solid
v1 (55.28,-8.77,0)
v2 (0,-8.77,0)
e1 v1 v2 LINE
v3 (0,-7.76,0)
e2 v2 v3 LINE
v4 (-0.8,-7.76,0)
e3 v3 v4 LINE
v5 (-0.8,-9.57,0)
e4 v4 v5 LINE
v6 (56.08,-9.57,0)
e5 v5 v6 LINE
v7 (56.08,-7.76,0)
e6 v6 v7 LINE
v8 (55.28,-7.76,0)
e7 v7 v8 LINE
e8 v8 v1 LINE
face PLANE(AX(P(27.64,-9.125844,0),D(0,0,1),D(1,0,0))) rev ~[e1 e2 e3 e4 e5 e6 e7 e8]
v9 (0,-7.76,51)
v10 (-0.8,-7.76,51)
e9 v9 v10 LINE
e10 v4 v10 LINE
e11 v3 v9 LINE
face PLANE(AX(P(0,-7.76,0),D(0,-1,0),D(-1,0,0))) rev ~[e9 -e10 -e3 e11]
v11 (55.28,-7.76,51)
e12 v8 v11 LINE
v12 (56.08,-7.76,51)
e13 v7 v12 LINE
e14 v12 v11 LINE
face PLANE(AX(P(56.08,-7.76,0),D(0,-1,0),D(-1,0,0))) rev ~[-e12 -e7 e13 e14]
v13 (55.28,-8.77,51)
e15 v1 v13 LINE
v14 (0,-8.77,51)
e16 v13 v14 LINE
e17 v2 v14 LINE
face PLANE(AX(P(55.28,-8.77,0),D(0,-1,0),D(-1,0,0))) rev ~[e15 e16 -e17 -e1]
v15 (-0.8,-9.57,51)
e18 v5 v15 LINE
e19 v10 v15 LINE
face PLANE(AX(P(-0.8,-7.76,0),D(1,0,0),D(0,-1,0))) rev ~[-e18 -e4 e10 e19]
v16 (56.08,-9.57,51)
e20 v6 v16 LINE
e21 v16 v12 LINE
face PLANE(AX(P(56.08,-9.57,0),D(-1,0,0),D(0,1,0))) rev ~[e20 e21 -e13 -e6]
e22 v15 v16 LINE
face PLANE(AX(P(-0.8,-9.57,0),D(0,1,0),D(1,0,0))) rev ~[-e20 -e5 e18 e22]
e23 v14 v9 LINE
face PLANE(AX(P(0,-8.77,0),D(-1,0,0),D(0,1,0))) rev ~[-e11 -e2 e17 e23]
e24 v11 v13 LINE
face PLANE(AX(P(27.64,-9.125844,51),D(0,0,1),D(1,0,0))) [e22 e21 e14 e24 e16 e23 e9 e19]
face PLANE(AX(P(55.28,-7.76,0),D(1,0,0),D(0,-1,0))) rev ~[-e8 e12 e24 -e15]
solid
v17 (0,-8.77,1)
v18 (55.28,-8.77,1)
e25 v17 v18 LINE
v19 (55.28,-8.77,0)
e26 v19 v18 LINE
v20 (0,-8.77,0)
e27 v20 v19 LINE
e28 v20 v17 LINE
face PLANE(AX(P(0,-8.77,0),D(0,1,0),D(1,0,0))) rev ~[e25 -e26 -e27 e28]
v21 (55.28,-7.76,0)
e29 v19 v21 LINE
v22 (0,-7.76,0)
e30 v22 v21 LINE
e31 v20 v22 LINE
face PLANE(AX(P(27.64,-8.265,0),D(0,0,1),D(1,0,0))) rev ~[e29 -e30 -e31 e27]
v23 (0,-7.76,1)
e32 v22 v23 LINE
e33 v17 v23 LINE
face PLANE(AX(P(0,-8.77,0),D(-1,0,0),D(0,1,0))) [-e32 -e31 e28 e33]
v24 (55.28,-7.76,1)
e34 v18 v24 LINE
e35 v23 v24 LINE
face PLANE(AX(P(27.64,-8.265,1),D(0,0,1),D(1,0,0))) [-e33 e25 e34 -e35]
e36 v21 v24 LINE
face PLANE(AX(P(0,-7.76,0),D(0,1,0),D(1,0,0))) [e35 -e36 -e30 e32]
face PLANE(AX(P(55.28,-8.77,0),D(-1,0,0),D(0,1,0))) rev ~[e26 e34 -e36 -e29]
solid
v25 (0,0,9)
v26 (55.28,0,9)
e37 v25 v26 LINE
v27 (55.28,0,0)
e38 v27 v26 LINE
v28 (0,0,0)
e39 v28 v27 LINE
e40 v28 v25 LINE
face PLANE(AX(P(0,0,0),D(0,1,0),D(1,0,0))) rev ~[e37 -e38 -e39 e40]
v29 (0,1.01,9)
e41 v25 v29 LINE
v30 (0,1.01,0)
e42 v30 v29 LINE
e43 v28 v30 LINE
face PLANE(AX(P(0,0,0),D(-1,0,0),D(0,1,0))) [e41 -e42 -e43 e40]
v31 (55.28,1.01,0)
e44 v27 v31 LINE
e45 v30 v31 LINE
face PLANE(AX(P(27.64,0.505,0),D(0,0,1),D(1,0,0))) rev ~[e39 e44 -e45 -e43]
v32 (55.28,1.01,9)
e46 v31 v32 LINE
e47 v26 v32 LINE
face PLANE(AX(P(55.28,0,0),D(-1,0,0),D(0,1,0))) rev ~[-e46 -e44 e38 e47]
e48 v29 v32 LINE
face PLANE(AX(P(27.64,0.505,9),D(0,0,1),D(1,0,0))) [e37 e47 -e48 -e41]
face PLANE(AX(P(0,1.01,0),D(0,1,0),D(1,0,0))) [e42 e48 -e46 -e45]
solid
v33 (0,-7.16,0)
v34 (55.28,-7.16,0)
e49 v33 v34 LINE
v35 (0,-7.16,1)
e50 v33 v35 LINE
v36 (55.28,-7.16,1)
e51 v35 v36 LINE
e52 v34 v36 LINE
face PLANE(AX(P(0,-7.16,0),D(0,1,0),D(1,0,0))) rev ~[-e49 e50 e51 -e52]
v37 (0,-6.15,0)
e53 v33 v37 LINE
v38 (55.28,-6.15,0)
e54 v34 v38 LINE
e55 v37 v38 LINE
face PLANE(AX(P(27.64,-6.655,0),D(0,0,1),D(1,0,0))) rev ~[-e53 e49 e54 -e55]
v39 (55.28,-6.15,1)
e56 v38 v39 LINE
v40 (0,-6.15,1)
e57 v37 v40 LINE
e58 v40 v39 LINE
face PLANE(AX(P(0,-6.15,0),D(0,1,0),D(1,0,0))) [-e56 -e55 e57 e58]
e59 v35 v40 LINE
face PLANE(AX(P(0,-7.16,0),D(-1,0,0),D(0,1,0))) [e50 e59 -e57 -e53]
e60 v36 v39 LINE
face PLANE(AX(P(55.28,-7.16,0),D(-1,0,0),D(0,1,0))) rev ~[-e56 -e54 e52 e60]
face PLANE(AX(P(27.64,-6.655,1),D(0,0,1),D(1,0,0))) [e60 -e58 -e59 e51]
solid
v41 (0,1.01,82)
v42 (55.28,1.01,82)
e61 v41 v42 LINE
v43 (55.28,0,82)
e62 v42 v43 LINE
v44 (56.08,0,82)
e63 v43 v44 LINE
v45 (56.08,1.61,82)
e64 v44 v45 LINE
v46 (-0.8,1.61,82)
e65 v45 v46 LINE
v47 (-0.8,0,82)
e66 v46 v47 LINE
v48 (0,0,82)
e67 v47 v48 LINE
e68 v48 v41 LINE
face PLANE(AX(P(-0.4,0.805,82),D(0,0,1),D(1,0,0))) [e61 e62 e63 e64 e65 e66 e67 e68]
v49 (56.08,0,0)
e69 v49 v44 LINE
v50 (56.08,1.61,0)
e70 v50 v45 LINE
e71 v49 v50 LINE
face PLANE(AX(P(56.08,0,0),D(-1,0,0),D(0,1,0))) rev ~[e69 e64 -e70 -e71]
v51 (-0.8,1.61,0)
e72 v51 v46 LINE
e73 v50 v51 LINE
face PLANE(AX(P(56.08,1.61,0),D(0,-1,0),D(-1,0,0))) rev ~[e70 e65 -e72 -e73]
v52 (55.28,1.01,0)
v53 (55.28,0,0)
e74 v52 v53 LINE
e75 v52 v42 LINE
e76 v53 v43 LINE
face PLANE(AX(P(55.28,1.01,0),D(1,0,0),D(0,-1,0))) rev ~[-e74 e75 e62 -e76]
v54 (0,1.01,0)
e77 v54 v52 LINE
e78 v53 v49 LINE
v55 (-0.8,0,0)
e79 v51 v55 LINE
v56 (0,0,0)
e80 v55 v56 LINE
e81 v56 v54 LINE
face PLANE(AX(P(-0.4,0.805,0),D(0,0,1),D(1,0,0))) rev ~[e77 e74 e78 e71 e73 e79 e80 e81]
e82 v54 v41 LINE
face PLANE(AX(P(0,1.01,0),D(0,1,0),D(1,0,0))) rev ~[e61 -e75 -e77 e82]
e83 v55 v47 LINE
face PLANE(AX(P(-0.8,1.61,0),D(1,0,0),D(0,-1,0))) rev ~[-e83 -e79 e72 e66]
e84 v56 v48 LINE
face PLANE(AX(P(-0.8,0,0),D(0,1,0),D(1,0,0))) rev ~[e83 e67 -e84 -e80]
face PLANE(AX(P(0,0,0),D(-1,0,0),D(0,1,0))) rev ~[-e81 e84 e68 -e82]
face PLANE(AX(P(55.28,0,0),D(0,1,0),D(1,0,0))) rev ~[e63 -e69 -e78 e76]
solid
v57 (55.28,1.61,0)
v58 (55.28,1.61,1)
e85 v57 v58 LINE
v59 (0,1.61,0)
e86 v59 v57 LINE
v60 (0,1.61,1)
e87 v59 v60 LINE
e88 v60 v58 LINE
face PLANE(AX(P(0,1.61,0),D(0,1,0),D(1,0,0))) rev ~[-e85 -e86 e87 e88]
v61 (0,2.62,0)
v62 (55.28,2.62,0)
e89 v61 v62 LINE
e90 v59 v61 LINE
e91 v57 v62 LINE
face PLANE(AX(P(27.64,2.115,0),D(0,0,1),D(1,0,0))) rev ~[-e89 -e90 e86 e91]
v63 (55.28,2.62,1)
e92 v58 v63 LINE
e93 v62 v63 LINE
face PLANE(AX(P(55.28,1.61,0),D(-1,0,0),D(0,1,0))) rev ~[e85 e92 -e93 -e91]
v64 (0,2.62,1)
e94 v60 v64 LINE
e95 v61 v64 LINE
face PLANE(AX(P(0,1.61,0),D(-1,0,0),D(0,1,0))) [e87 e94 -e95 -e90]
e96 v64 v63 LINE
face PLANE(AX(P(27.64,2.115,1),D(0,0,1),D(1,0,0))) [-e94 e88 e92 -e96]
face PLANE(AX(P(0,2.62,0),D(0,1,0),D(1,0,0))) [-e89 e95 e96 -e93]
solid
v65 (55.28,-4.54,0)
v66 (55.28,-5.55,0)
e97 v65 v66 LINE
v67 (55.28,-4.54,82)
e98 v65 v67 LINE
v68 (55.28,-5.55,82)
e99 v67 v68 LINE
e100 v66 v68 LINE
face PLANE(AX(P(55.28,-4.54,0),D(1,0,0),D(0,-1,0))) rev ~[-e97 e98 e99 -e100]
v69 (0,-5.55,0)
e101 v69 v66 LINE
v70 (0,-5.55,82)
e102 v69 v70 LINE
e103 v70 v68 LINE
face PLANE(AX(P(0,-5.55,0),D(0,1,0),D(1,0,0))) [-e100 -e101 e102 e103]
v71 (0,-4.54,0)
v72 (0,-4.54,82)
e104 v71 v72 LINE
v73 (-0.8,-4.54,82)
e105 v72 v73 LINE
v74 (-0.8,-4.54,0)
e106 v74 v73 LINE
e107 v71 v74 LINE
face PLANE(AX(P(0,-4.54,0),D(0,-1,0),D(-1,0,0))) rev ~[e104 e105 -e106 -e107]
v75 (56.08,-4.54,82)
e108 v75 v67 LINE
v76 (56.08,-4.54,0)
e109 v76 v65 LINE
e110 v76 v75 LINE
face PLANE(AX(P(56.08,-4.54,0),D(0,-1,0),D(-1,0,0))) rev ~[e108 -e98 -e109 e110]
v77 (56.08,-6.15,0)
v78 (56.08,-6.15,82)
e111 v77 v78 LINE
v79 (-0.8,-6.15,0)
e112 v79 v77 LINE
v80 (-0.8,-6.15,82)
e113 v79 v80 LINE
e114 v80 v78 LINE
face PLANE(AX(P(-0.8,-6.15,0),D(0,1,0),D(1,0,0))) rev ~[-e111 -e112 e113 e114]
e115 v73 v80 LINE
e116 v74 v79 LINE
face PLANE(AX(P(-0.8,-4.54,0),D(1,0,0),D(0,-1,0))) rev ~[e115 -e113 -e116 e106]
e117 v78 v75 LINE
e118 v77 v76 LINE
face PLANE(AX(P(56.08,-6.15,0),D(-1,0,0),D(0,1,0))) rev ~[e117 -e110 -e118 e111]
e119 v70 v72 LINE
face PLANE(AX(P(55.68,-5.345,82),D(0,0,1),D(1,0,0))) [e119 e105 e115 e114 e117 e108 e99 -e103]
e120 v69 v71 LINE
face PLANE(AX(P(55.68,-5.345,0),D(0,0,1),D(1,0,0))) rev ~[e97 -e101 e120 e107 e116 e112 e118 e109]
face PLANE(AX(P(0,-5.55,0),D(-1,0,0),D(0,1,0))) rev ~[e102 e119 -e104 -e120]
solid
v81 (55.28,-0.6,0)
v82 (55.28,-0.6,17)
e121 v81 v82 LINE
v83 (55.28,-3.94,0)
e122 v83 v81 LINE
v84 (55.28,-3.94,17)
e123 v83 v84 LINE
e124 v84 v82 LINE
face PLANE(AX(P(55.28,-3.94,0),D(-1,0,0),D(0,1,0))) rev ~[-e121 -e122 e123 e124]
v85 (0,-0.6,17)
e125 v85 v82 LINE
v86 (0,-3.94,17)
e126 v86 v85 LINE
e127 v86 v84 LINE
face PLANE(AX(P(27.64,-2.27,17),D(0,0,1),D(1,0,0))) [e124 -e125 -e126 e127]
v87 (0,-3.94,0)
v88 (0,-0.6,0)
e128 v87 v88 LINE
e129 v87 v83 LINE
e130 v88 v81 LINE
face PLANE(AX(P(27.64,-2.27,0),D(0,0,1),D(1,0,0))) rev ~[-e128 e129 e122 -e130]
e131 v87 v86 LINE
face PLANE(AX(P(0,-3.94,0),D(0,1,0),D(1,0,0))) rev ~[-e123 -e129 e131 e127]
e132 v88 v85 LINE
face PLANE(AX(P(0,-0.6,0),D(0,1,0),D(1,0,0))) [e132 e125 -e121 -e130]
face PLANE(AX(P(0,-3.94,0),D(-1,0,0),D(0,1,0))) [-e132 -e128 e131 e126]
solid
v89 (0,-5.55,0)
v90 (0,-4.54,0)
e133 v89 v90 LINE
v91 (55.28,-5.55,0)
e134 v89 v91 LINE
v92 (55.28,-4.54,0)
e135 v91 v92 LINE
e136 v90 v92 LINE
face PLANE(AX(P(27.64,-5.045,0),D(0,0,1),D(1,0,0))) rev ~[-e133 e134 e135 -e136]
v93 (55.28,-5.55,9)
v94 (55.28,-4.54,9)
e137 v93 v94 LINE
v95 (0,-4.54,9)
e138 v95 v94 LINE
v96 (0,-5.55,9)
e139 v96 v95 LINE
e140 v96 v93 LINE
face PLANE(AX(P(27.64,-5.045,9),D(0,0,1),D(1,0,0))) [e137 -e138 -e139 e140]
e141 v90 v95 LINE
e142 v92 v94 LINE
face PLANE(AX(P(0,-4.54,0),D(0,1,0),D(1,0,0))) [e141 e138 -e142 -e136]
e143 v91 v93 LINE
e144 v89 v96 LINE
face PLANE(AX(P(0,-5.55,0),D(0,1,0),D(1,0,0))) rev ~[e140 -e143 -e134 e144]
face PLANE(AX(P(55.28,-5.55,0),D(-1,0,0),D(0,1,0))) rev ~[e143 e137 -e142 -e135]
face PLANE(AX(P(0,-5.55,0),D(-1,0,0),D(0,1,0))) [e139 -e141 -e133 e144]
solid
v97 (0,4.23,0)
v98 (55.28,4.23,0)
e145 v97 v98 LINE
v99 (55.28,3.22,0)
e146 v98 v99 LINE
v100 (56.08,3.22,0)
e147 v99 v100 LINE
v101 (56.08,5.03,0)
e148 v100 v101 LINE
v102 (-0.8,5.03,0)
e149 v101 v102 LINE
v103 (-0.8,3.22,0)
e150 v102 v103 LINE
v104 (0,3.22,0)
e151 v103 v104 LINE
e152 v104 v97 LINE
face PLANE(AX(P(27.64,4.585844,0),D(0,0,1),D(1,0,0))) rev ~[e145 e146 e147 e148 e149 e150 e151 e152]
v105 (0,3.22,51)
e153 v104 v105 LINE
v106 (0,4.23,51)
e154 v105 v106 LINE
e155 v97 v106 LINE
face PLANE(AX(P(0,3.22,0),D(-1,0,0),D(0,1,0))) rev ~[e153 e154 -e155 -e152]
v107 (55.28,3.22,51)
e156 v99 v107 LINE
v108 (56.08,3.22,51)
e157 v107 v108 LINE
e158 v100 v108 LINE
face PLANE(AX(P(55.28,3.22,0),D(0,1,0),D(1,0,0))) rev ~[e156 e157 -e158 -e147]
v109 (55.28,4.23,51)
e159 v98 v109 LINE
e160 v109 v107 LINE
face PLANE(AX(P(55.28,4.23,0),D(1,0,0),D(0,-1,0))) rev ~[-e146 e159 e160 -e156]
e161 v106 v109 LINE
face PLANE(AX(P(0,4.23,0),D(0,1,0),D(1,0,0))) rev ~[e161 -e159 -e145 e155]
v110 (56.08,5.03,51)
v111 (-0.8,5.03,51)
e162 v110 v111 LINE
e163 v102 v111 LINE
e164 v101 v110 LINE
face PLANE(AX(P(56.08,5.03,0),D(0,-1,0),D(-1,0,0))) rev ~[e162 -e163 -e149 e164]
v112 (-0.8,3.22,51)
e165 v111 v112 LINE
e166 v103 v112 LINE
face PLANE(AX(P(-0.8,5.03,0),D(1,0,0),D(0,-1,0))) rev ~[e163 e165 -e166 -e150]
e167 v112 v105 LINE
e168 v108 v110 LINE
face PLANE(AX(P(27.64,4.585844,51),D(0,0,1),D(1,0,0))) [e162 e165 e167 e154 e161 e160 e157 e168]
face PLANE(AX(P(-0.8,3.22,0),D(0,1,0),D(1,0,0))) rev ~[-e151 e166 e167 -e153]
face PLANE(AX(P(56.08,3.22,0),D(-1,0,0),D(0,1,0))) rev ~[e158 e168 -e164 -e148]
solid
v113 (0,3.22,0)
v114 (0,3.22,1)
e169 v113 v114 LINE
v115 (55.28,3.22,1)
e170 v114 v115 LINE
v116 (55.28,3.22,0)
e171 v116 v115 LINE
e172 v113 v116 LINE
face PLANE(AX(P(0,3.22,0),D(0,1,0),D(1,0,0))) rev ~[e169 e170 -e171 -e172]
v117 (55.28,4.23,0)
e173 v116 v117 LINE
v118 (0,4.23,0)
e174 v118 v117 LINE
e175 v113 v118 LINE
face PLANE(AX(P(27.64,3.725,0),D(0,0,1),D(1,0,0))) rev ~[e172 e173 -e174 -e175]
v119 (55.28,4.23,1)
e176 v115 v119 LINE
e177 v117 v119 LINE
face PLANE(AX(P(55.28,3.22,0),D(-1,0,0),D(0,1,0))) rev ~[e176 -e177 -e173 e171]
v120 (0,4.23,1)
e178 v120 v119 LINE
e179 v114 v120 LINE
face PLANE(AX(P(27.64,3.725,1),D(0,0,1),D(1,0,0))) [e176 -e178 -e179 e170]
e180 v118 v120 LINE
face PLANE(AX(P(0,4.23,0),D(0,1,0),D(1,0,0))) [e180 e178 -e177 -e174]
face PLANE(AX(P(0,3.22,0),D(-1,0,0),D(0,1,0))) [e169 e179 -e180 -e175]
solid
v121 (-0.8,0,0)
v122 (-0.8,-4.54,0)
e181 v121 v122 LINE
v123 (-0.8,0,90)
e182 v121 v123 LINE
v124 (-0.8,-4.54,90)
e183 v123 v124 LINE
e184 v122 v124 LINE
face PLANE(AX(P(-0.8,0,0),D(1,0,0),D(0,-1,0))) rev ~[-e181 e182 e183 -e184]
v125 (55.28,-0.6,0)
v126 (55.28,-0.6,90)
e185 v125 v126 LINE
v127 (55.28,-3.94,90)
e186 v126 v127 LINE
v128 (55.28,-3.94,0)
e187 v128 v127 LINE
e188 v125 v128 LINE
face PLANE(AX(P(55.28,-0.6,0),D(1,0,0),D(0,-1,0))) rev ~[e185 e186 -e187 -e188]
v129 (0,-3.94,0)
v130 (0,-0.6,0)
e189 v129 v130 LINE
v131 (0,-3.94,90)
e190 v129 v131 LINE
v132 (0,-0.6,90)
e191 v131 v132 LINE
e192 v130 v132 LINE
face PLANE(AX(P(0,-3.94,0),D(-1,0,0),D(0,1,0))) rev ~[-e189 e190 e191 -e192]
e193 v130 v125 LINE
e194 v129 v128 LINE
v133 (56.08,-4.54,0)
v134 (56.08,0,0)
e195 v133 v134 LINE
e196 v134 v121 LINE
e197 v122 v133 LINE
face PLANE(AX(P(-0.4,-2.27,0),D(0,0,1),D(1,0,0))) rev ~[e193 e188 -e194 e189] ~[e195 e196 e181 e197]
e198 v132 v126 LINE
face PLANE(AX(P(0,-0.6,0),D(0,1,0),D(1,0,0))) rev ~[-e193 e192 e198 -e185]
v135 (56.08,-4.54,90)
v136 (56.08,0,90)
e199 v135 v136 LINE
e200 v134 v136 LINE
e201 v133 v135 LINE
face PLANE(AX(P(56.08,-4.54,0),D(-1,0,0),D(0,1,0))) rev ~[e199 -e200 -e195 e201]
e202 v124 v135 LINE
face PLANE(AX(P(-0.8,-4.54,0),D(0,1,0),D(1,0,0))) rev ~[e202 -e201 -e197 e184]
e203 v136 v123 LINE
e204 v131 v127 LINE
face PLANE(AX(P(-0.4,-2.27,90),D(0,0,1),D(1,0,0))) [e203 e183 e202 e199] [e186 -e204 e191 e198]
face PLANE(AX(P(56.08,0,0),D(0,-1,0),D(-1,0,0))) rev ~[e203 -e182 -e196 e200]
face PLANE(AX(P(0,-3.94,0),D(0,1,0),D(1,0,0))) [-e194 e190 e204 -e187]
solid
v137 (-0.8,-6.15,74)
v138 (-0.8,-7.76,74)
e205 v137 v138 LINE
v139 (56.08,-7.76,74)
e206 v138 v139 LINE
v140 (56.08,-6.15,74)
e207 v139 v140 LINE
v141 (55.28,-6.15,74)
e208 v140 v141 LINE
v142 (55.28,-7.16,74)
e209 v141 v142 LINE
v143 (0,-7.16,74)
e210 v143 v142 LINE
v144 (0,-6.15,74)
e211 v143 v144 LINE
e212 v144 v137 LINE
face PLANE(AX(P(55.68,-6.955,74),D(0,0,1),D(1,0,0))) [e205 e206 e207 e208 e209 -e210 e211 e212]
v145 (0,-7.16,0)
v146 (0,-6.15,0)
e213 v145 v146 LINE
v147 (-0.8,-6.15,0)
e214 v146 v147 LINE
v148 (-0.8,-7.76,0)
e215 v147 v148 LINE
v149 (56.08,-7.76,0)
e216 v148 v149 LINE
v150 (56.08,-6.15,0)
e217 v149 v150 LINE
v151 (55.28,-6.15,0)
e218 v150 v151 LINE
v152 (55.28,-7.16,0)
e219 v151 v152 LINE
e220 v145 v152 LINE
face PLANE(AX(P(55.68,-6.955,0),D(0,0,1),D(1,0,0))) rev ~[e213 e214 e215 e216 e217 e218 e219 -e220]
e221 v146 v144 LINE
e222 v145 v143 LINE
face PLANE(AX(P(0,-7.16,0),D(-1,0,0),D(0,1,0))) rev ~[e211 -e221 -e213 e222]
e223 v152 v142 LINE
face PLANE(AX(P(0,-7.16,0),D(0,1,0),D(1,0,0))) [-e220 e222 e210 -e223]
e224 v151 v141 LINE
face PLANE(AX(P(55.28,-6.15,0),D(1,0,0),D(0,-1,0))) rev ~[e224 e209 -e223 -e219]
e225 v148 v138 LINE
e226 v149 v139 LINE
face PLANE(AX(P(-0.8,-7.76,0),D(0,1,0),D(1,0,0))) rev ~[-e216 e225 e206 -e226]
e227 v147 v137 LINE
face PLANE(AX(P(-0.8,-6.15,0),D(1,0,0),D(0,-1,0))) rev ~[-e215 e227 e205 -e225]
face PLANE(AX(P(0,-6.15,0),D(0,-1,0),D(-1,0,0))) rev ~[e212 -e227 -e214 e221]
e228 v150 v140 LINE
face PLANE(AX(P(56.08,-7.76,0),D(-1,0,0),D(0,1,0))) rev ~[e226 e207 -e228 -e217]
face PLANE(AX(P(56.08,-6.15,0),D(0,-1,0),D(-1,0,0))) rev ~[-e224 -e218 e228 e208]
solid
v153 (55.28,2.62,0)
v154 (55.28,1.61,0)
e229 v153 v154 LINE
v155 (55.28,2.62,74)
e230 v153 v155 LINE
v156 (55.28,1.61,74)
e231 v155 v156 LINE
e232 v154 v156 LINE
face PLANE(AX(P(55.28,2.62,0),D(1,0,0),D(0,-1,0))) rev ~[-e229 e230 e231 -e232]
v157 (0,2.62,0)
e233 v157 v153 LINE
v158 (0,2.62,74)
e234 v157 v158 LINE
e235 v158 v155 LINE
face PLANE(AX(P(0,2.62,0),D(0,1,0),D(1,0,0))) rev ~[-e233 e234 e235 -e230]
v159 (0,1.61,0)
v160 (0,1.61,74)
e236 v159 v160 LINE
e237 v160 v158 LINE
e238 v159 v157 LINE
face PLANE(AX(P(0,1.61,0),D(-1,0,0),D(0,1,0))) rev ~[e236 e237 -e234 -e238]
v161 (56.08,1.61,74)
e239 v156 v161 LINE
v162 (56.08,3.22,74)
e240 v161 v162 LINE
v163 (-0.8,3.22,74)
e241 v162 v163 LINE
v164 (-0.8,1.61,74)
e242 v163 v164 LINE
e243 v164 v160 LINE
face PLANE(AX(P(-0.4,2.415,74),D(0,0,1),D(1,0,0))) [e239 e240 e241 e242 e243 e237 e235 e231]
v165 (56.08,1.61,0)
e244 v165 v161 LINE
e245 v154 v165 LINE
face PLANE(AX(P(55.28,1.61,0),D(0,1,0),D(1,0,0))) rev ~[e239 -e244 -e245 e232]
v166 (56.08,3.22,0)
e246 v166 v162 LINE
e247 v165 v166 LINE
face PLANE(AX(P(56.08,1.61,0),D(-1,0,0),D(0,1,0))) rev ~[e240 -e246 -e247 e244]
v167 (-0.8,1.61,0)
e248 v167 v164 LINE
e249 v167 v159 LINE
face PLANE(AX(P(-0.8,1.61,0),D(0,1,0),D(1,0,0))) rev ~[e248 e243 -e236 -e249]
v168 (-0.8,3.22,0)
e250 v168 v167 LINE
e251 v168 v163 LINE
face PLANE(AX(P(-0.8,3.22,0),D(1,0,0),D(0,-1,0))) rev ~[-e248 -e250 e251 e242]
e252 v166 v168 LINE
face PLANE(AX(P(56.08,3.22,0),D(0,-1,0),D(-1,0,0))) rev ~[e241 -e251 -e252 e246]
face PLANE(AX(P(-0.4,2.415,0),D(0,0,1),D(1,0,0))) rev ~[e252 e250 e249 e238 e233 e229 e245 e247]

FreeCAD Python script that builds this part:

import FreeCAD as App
import Part
import Sketcher

V = App.Vector
Q = App.Units.Quantity

doc = App.newDocument("Part")
body = doc.addObject("PartDesign::Body", "Body")
body.AllowCompound = True

# Sketch on XY plane
sketch1 = body.newObject("Sketcher::SketchObject", "Sketch")
sketch1.AttachmentSupport = (doc.getObject("XY_Plane"), [""])
sketch1.MapMode = "FlatFace"
sketch1.addGeometry(Part.LineSegment(V(0, 4.2, 0), V(0, 3.2, 0)), False)
sketch1.addGeometry(Part.LineSegment(V(0, 3.2, 0), V(55.3, 3.2, 0)), False)
sketch1.addGeometry(Part.LineSegment(V(55.3, 3.2, 0), V(55.3, 4.2, 0)), False)
sketch1.addGeometry(Part.LineSegment(V(55.3, 4.2, 0), V(0, 4.2, 0)), False)
sketch1.addGeometry(Part.LineSegment(V(0, 2.6, 0), V(0, 1.6, 0)), False)
sketch1.addGeometry(Part.LineSegment(V(0, 1.6, 0), V(55.3, 1.6, 0)), False)
sketch1.addGeometry(Part.LineSegment(V(55.3, 1.6, 0), V(55.3, 2.6, 0)), False)
sketch1.addGeometry(Part.LineSegment(V(55.3, 2.6, 0), V(0, 2.6, 0)), False)
sketch1.addGeometry(Part.LineSegment(V(0, -6.2, 0), V(0, -7.2, 0)), False)
sketch1.addGeometry(Part.LineSegment(V(0, -7.2, 0), V(55.3, -7.2, 0)), False)
sketch1.addGeometry(Part.LineSegment(V(55.3, -7.2, 0), V(55.3, -6.2, 0)), False)
sketch1.addGeometry(Part.LineSegment(V(55.3, -6.2, 0), V(0, -6.2, 0)), False)
sketch1.addGeometry(Part.LineSegment(V(0, -7.8, 0), V(0, -8.8, 0)), False)
sketch1.addGeometry(Part.LineSegment(V(0, -8.8, 0), V(55.3, -8.8, 0)), False)
sketch1.addGeometry(Part.LineSegment(V(55.3, -8.8, 0), V(55.3, -7.8, 0)), False)
sketch1.addGeometry(Part.LineSegment(V(55.3, -7.8, 0), V(0, -7.8, 0)), False)
sketch1.addConstraint(Sketcher.Constraint("Coincident", 0, 2, 1, 1))
sketch1.addConstraint(Sketcher.Constraint("Coincident", 1, 2, 2, 1))
sketch1.addConstraint(Sketcher.Constraint("Coincident", 2, 2, 3, 1))
sketch1.addConstraint(Sketcher.Constraint("Coincident", 3, 2, 0, 1))
sketch1.addConstraint(Sketcher.Constraint("Coincident", 4, 2, 5, 1))
sketch1.addConstraint(Sketcher.Constraint("Coincident", 5, 2, 6, 1))
sketch1.addConstraint(Sketcher.Constraint("Coincident", 6, 2, 7, 1))
sketch1.addConstraint(Sketcher.Constraint("Coincident", 7, 2, 4, 1))
sketch1.addConstraint(Sketcher.Constraint("Coincident", 8, 2, 9, 1))
sketch1.addConstraint(Sketcher.Constraint("Coincident", 9, 2, 10, 1))
sketch1.addConstraint(Sketcher.Constraint("Coincident", 10, 2, 11, 1))
sketch1.addConstraint(Sketcher.Constraint("Coincident", 11, 2, 8, 1))
sketch1.addConstraint(Sketcher.Constraint("Coincident", 12, 2, 13, 1))
sketch1.addConstraint(Sketcher.Constraint("Coincident", 13, 2, 14, 1))
sketch1.addConstraint(Sketcher.Constraint("Coincident", 14, 2, 15, 1))
sketch1.addConstraint(Sketcher.Constraint("Coincident", 15, 2, 12, 1))
sketch1.addConstraint(Sketcher.Constraint("Vertical", 0))
sketch1.addConstraint(Sketcher.Constraint("Horizontal", 1))
sketch1.addConstraint(Sketcher.Constraint("Vertical", 2))
sketch1.addConstraint(Sketcher.Constraint("Horizontal", 3))
sketch1.addConstraint(Sketcher.Constraint("Vertical", 4))
sketch1.addConstraint(Sketcher.Constraint("Horizontal", 5))
sketch1.addConstraint(Sketcher.Constraint("Vertical", 6))
sketch1.addConstraint(Sketcher.Constraint("Horizontal", 7))
sketch1.addConstraint(Sketcher.Constraint("Vertical", 8))
sketch1.addConstraint(Sketcher.Constraint("Horizontal", 9))
sketch1.addConstraint(Sketcher.Constraint("Vertical", 10))
sketch1.addConstraint(Sketcher.Constraint("Horizontal", 11))
sketch1.addConstraint(Sketcher.Constraint("Vertical", 12))
sketch1.addConstraint(Sketcher.Constraint("Horizontal", 13))
sketch1.addConstraint(Sketcher.Constraint("Vertical", 14))
sketch1.addConstraint(Sketcher.Constraint("Horizontal", 15))
sketch1.addConstraint(Sketcher.Constraint("PointOnObject", 0, 2, -2))
sketch1.addConstraint(Sketcher.Constraint("PointOnObject", 4, 2, -2))
sketch1.addConstraint(Sketcher.Constraint("PointOnObject", 8, 2, -2))
sketch1.addConstraint(Sketcher.Constraint("PointOnObject", 12, 2, -2))
sketch1.addConstraint(Sketcher.Constraint("Vertical", 2, 2, 5, 2))
sketch1.addConstraint(Sketcher.Constraint("Vertical", 6, 2, 9, 2))
sketch1.addConstraint(Sketcher.Constraint("Vertical", 10, 2, 13, 2))
sketch1.addConstraint(Sketcher.Constraint("Equal", 2, 4))
sketch1.addConstraint(Sketcher.Constraint("Equal", 6, 8))
sketch1.addConstraint(Sketcher.Constraint("Equal", 10, 12))
sketch1.addConstraint(Sketcher.Constraint("DistanceX", 1, 1, 1, 2, Q("55.28 mm")))
sketch1.addConstraint(Sketcher.Constraint("DistanceY", 0, 2, 0, 1, Q("1.01 mm")))
sketch1.addConstraint(Sketcher.Constraint("DistanceY", 6, 2, 1, 2, Q("0.6 mm")))
sketch1.addConstraint(Sketcher.Constraint("DistanceY", 14, 2, 9, 2, Q("0.6 mm")))
sketch1.addConstraint(Sketcher.Constraint("DistanceY", -1, 1, 0, 2, Q("3.22 mm")))
sketch1.addConstraint(Sketcher.Constraint("DistanceY", 8, 2, -1, 1, Q("7.16 mm")))
pad1 = body.newObject("PartDesign::Pad", "Pad")
pad1.Profile = sketch1
pad1.Length = 1
body2 = doc.addObject("PartDesign::Body", "Body001")
body2.AllowCompound = True

# Sketch on XY plane
sketch2 = body2.newObject("Sketcher::SketchObject", "Sketch001")
sketch2.AttachmentSupport = (doc.getObject("XY_Plane001"), [""])
sketch2.MapMode = "FlatFace"
sketch2.addGeometry(Part.LineSegment(V(0, 1, 0), V(0, 0, 0)), False)
sketch2.addGeometry(Part.LineSegment(V(0, 0, 0), V(55.3, 0, 0)), False)
sketch2.addGeometry(Part.LineSegment(V(55.3, 0, 0), V(55.3, 1, 0)), False)
sketch2.addGeometry(Part.LineSegment(V(55.3, 1, 0), V(0, 1, 0)), False)
sketch2.addGeometry(Part.LineSegment(V(0, -4.5, 0), V(0, -5.5, 0)), False)
sketch2.addGeometry(Part.LineSegment(V(0, -5.5, 0), V(55.3, -5.5, 0)), False)
sketch2.addGeometry(Part.LineSegment(V(55.3, -5.5, 0), V(55.3, -4.5, 0)), False)
sketch2.addGeometry(Part.LineSegment(V(55.3, -4.5, 0), V(0, -4.5, 0)), False)
sketch2.addConstraint(Sketcher.Constraint("Coincident", 0, 2, 1, 1))
sketch2.addConstraint(Sketcher.Constraint("Coincident", 1, 2, 2, 1))
sketch2.addConstraint(Sketcher.Constraint("Coincident", 2, 2, 3, 1))
sketch2.addConstraint(Sketcher.Constraint("Coincident", 3, 2, 0, 1))
sketch2.addConstraint(Sketcher.Constraint("Coincident", 4, 2, 5, 1))
sketch2.addConstraint(Sketcher.Constraint("Coincident", 5, 2, 6, 1))
sketch2.addConstraint(Sketcher.Constraint("Coincident", 6, 2, 7, 1))
sketch2.addConstraint(Sketcher.Constraint("Coincident", 7, 2, 4, 1))
sketch2.addConstraint(Sketcher.Constraint("Vertical", 0))
sketch2.addConstraint(Sketcher.Constraint("Horizontal", 1))
sketch2.addConstraint(Sketcher.Constraint("Vertical", 2))
sketch2.addConstraint(Sketcher.Constraint("Horizontal", 3))
sketch2.addConstraint(Sketcher.Constraint("Vertical", 4))
sketch2.addConstraint(Sketcher.Constraint("Horizontal", 5))
sketch2.addConstraint(Sketcher.Constraint("Vertical", 6))
sketch2.addConstraint(Sketcher.Constraint("Horizontal", 7))
sketch2.addConstraint(Sketcher.Constraint("Coincident", 0, 2, -1, 1))
sketch2.addConstraint(Sketcher.Constraint("PointOnObject", 4, 2, -2))
sketch2.addConstraint(Sketcher.Constraint("Vertical", 2, 2, 5, 2))
sketch2.addConstraint(Sketcher.Constraint("Equal", 2, 4))
sketch2.addConstraint(Sketcher.Constraint("DistanceX", 1, 1, 1, 2, Q("55.28 mm")))
sketch2.addConstraint(Sketcher.Constraint("DistanceY", 0, 2, 0, 1, Q("1.01 mm")))
sketch2.addConstraint(Sketcher.Constraint("DistanceY", 4, 2, -1, 1, Q("5.55 mm")))
pad2 = body2.newObject("PartDesign::Pad", "Pad001")
pad2.Profile = sketch2
pad2.Length = 9
body3 = doc.addObject("PartDesign::Body", "Body002")

# Sketch on XY plane
sketch3 = body3.newObject("Sketcher::SketchObject", "Sketch002")
sketch3.AttachmentSupport = (doc.getObject("XY_Plane002"), [""])
sketch3.MapMode = "FlatFace"
sketch3.addGeometry(Part.LineSegment(V(0, -0.6, 0), V(0, -3.9, 0)), False)
sketch3.addGeometry(Part.LineSegment(V(0, -3.9, 0), V(55.3, -3.9, 0)), False)
sketch3.addGeometry(Part.LineSegment(V(55.3, -3.9, 0), V(55.3, -0.6, 0)), False)
sketch3.addGeometry(Part.LineSegment(V(55.3, -0.6, 0), V(0, -0.6, 0)), False)
sketch3.addConstraint(Sketcher.Constraint("Coincident", 0, 2, 1, 1))
sketch3.addConstraint(Sketcher.Constraint("Coincident", 1, 2, 2, 1))
sketch3.addConstraint(Sketcher.Constraint("Coincident", 2, 2, 3, 1))
sketch3.addConstraint(Sketcher.Constraint("Coincident", 3, 2, 0, 1))
sketch3.addConstraint(Sketcher.Constraint("Vertical", 0))
sketch3.addConstraint(Sketcher.Constraint("Horizontal", 1))
sketch3.addConstraint(Sketcher.Constraint("Vertical", 2))
sketch3.addConstraint(Sketcher.Constraint("Horizontal", 3))
sketch3.addConstraint(Sketcher.Constraint("PointOnObject", 0, 2, -2))
sketch3.addConstraint(Sketcher.Constraint("DistanceX", 1, 1, 1, 2, Q("55.28 mm")))
sketch3.addConstraint(Sketcher.Constraint("DistanceY", 0, 2, 0, 1, Q("3.34 mm")))
sketch3.addConstraint(Sketcher.Constraint("DistanceY", 2, 2, -1, 1, Q("0.6 mm")))
pad3 = body3.newObject("PartDesign::Pad", "Pad002")
pad3.Profile = sketch3
pad3.Length = 17
body4 = doc.addObject("PartDesign::Body", "Body003")
body4.AllowCompound = True

# Sketch on XY plane
sketch4 = body4.newObject("Sketcher::SketchObject", "Sketch003")
sketch4.AttachmentSupport = (doc.getObject("XY_Plane003"), [""])
sketch4.MapMode = "FlatFace"
sketch4.addGeometry(Part.LineSegment(V(-0.8, 3.2, 0), V(0, 3.2, 0)), False)
sketch4.addGeometry(Part.LineSegment(V(0, 3.2, 0), V(0, 4.2, 0)), False)
sketch4.addGeometry(Part.LineSegment(V(0, 4.2, 0), V(55.3, 4.2, 0)), False)
sketch4.addGeometry(Part.LineSegment(V(55.3, 4.2, 0), V(55.3, 3.2, 0)), False)
sketch4.addGeometry(Part.LineSegment(V(55.3, 3.2, 0), V(56.1, 3.2, 0)), False)
sketch4.addGeometry(Part.LineSegment(V(56.1, 3.2, 0), V(56.1, 5, 0)), False)
sketch4.addGeometry(Part.LineSegment(V(56.1, 5, 0), V(-0.8, 5, 0)), False)
sketch4.addGeometry(Part.LineSegment(V(-0.8, 5, 0), V(-0.8, 3.2, 0)), False)
sketch4.addGeometry(Part.LineSegment(V(56.1, -9.6, 0), V(56.1, -7.8, 0)), False)
sketch4.addGeometry(Part.LineSegment(V(56.1, -7.8, 0), V(55.3, -7.8, 0)), False)
sketch4.addGeometry(Part.LineSegment(V(55.3, -7.8, 0), V(55.3, -8.8, 0)), False)
sketch4.addGeometry(Part.LineSegment(V(55.3, -8.8, 0), V(0, -8.8, 0)), False)
sketch4.addGeometry(Part.LineSegment(V(0, -8.8, 0), V(0, -7.8, 0)), False)
sketch4.addGeometry(Part.LineSegment(V(0, -7.8, 0), V(-0.8, -7.8, 0)), False)
sketch4.addGeometry(Part.LineSegment(V(-0.8, -7.8, 0), V(-0.8, -9.6, 0)), False)
sketch4.addGeometry(Part.LineSegment(V(-0.8, -9.6, 0), V(56.1, -9.6, 0)), False)
sketch4.addConstraint(Sketcher.Constraint("Coincident", 0, 2, 1, 1))
sketch4.addConstraint(Sketcher.Constraint("Coincident", 1, 2, 2, 1))
sketch4.addConstraint(Sketcher.Constraint("Coincident", 2, 2, 3, 1))
sketch4.addConstraint(Sketcher.Constraint("Coincident", 3, 2, 4, 1))
sketch4.addConstraint(Sketcher.Constraint("Coincident", 4, 2, 5, 1))
sketch4.addConstraint(Sketcher.Constraint("Coincident", 5, 2, 6, 1))
sketch4.addConstraint(Sketcher.Constraint("Coincident", 6, 2, 7, 1))
sketch4.addConstraint(Sketcher.Constraint("Coincident", 7, 2, 0, 1))
sketch4.addConstraint(Sketcher.Constraint("Coincident", 8, 2, 9, 1))
sketch4.addConstraint(Sketcher.Constraint("Coincident", 9, 2, 10, 1))
sketch4.addConstraint(Sketcher.Constraint("Coincident", 10, 2, 11, 1))
sketch4.addConstraint(Sketcher.Constraint("Coincident", 11, 2, 12, 1))
sketch4.addConstraint(Sketcher.Constraint("Coincident", 12, 2, 13, 1))
sketch4.addConstraint(Sketcher.Constraint("Coincident", 13, 2, 14, 1))
sketch4.addConstraint(Sketcher.Constraint("Coincident", 14, 2, 15, 1))
sketch4.addConstraint(Sketcher.Constraint("Coincident", 15, 2, 8, 1))
sketch4.addConstraint(Sketcher.Constraint("Horizontal", 0))
sketch4.addConstraint(Sketcher.Constraint("Vertical", 1))
sketch4.addConstraint(Sketcher.Constraint("Horizontal", 2))
sketch4.addConstraint(Sketcher.Constraint("Vertical", 3))
sketch4.addConstraint(Sketcher.Constraint("Horizontal", 4))
sketch4.addConstraint(Sketcher.Constraint("Vertical", 5))
sketch4.addConstraint(Sketcher.Constraint("Horizontal", 6))
sketch4.addConstraint(Sketcher.Constraint("Vertical", 7))
sketch4.addConstraint(Sketcher.Constraint("Vertical", 8))
sketch4.addConstraint(Sketcher.Constraint("Horizontal", 9))
sketch4.addConstraint(Sketcher.Constraint("Vertical", 10))
sketch4.addConstraint(Sketcher.Constraint("Horizontal", 11))
sketch4.addConstraint(Sketcher.Constraint("Vertical", 12))
sketch4.addConstraint(Sketcher.Constraint("Horizontal", 13))
sketch4.addConstraint(Sketcher.Constraint("Vertical", 14))
sketch4.addConstraint(Sketcher.Constraint("Horizontal", 15))
sketch4.addConstraint(Sketcher.Constraint("PointOnObject", 0, 2, -2))
sketch4.addConstraint(Sketcher.Constraint("PointOnObject", 11, 2, -2))
sketch4.addConstraint(Sketcher.Constraint("Horizontal", 0, 2, 3, 2))
sketch4.addConstraint(Sketcher.Constraint("Horizontal", 9, 2, 12, 2))
sketch4.addConstraint(Sketcher.Constraint("Vertical", 5, 2, 8, 2))
sketch4.addConstraint(Sketcher.Constraint("Vertical", 3, 2, 9, 2))
sketch4.addConstraint(Sketcher.Constraint("Vertical", 7, 2, 13, 2))
sketch4.addConstraint(Sketcher.Constraint("Equal", 0, 4))
sketch4.addConstraint(Sketcher.Constraint("Equal", 7, 8))
sketch4.addConstraint(Sketcher.Constraint("Equal", 3, 10))
sketch4.addConstraint(Sketcher.Constraint("DistanceX", 0, 1, 0, 2, Q("0.8 mm")))
sketch4.addConstraint(Sketcher.Constraint("DistanceY", 10, 2, 2, 2, Q("13 mm")))
sketch4.addConstraint(Sketcher.Constraint("DistanceX", 2, 1, 2, 2, Q("55.28 mm")))
sketch4.addConstraint(Sketcher.Constraint("DistanceY", 1, 1, 1, 2, Q("1.01 mm")))
sketch4.addConstraint(Sketcher.Constraint("DistanceY", 5, 1, 5, 2, Q("1.81 mm")))
sketch4.addConstraint(Sketcher.Constraint("DistanceY", -1, 1, 0, 2, Q("3.22 mm")))
pad4 = body4.newObject("PartDesign::Pad", "Pad003")
pad4.Profile = sketch4
pad4.Length = 51
body5 = doc.addObject("PartDesign::Body", "Body004")
body5.AllowCompound = True

# Sketch on XY plane
sketch5 = body5.newObject("Sketcher::SketchObject", "Sketch004")
sketch5.AttachmentSupport = (doc.getObject("XY_Plane004"), [""])
sketch5.MapMode = "FlatFace"
sketch5.addGeometry(Part.LineSegment(V(-0.8, 1.6, 0), V(0, 1.6, 0)), False)
sketch5.addGeometry(Part.LineSegment(V(0, 1.6, 0), V(0, 2.6, 0)), False)
sketch5.addGeometry(Part.LineSegment(V(0, 2.6, 0), V(55.3, 2.6, 0)), False)
sketch5.addGeometry(Part.LineSegment(V(55.3, 2.6, 0), V(55.3, 1.6, 0)), False)
sketch5.addGeometry(Part.LineSegment(V(55.3, 1.6, 0), V(56.1, 1.6, 0)), False)
sketch5.addGeometry(Part.LineSegment(V(56.1, 1.6, 0), V(56.1, 3.2, 0)), False)
sketch5.addGeometry(Part.LineSegment(V(56.1, 3.2, 0), V(-0.8, 3.2, 0)), False)
sketch5.addGeometry(Part.LineSegment(V(-0.8, 3.2, 0), V(-0.8, 1.6, 0)), False)
sketch5.addGeometry(Part.LineSegment(V(56.1, -6.2, 0), V(55.3, -6.2, 0)), False)
sketch5.addGeometry(Part.LineSegment(V(55.3, -6.2, 0), V(55.3, -7.2, 0)), False)
sketch5.addGeometry(Part.LineSegment(V(55.3, -7.2, 0), V(0, -7.2, 0)), False)
sketch5.addGeometry(Part.LineSegment(V(0, -7.2, 0), V(0, -6.2, 0)), False)
sketch5.addGeometry(Part.LineSegment(V(0, -6.2, 0), V(-0.8, -6.2, 0)), False)
sketch5.addGeometry(Part.LineSegment(V(-0.8, -6.2, 0), V(-0.8, -7.8, 0)), False)
sketch5.addGeometry(Part.LineSegment(V(-0.8, -7.8, 0), V(56.1, -7.8, 0)), False)
sketch5.addGeometry(Part.LineSegment(V(56.1, -7.8, 0), V(56.1, -6.2, 0)), False)
sketch5.addConstraint(Sketcher.Constraint("Coincident", 0, 2, 1, 1))
sketch5.addConstraint(Sketcher.Constraint("Coincident", 1, 2, 2, 1))
sketch5.addConstraint(Sketcher.Constraint("Coincident", 2, 2, 3, 1))
sketch5.addConstraint(Sketcher.Constraint("Coincident", 3, 2, 4, 1))
sketch5.addConstraint(Sketcher.Constraint("Coincident", 4, 2, 5, 1))
sketch5.addConstraint(Sketcher.Constraint("Coincident", 5, 2, 6, 1))
sketch5.addConstraint(Sketcher.Constraint("Coincident", 6, 2, 7, 1))
sketch5.addConstraint(Sketcher.Constraint("Coincident", 7, 2, 0, 1))
sketch5.addConstraint(Sketcher.Constraint("Coincident", 8, 2, 9, 1))
sketch5.addConstraint(Sketcher.Constraint("Coincident", 9, 2, 10, 1))
sketch5.addConstraint(Sketcher.Constraint("Coincident", 10, 2, 11, 1))
sketch5.addConstraint(Sketcher.Constraint("Coincident", 11, 2, 12, 1))
sketch5.addConstraint(Sketcher.Constraint("Coincident", 12, 2, 13, 1))
sketch5.addConstraint(Sketcher.Constraint("Coincident", 13, 2, 14, 1))
sketch5.addConstraint(Sketcher.Constraint("Coincident", 14, 2, 15, 1))
sketch5.addConstraint(Sketcher.Constraint("Coincident", 15, 2, 8, 1))
sketch5.addConstraint(Sketcher.Constraint("Horizontal", 0))
sketch5.addConstraint(Sketcher.Constraint("Vertical", 1))
sketch5.addConstraint(Sketcher.Constraint("Horizontal", 2))
sketch5.addConstraint(Sketcher.Constraint("Vertical", 3))
sketch5.addConstraint(Sketcher.Constraint("Horizontal", 4))
sketch5.addConstraint(Sketcher.Constraint("Vertical", 5))
sketch5.addConstraint(Sketcher.Constraint("Horizontal", 6))
sketch5.addConstraint(Sketcher.Constraint("Vertical", 7))
sketch5.addConstraint(Sketcher.Constraint("Horizontal", 8))
sketch5.addConstraint(Sketcher.Constraint("Vertical", 9))
sketch5.addConstraint(Sketcher.Constraint("Horizontal", 10))
sketch5.addConstraint(Sketcher.Constraint("Vertical", 11))
sketch5.addConstraint(Sketcher.Constraint("Horizontal", 12))
sketch5.addConstraint(Sketcher.Constraint("Vertical", 13))
sketch5.addConstraint(Sketcher.Constraint("Horizontal", 14))
sketch5.addConstraint(Sketcher.Constraint("Vertical", 15))
sketch5.addConstraint(Sketcher.Constraint("PointOnObject", 0, 2, -2))
sketch5.addConstraint(Sketcher.Constraint("PointOnObject", 10, 2, -2))
sketch5.addConstraint(Sketcher.Constraint("Horizontal", 0, 2, 3, 2))
sketch5.addConstraint(Sketcher.Constraint("Horizontal", 8, 2, 11, 2))
sketch5.addConstraint(Sketcher.Constraint("Vertical", 3, 2, 8, 2))
sketch5.addConstraint(Sketcher.Constraint("Vertical", 7, 2, 12, 2))
sketch5.addConstraint(Sketcher.Constraint("Vertical", 5, 2, 14, 2))
sketch5.addConstraint(Sketcher.Constraint("Equal", 0, 4))
sketch5.addConstraint(Sketcher.Constraint("Equal", 3, 9))
sketch5.addConstraint(Sketcher.Constraint("Equal", 7, 13))
sketch5.addConstraint(Sketcher.Constraint("DistanceX", 0, 1, 0, 2, Q("0.8 mm")))
sketch5.addConstraint(Sketcher.Constraint("DistanceX", 2, 1, 2, 2, Q("55.28 mm")))
sketch5.addConstraint(Sketcher.Constraint("DistanceY", 1, 1, 1, 2, Q("1.01 mm")))
sketch5.addConstraint(Sketcher.Constraint("DistanceY", 5, 1, 5, 2, Q("1.61 mm")))
sketch5.addConstraint(Sketcher.Constraint("DistanceY", -1, 1, 0, 2, Q("1.61 mm")))
sketch5.addConstraint(Sketcher.Constraint("DistanceY", 8, 2, -1, 1, Q("6.15 mm")))
pad5 = body5.newObject("PartDesign::Pad", "Pad004")
pad5.Profile = sketch5
pad5.Length = 74
body6 = doc.addObject("PartDesign::Body", "Body005")
body6.AllowCompound = True

# Sketch on XY plane
sketch6 = body6.newObject("Sketcher::SketchObject", "Sketch005")
sketch6.AttachmentSupport = (doc.getObject("XY_Plane005"), [""])
sketch6.MapMode = "FlatFace"
sketch6.addGeometry(Part.LineSegment(V(-0.8, 0, 0), V(0, 0, 0)), False)
sketch6.addGeometry(Part.LineSegment(V(0, 0, 0), V(0, 1, 0)), False)
sketch6.addGeometry(Part.LineSegment(V(0, 1, 0), V(55.3, 1, 0)), False)
sketch6.addGeometry(Part.LineSegment(V(55.3, 1, 0), V(55.3, 0, 0)), False)
sketch6.addGeometry(Part.LineSegment(V(55.3, 0, 0), V(56.1, 0, 0)), False)
sketch6.addGeometry(Part.LineSegment(V(56.1, 0, 0), V(56.1, 1.6, 0)), False)
sketch6.addGeometry(Part.LineSegment(V(56.1, 1.6, 0), V(-0.8, 1.6, 0)), False)
sketch6.addGeometry(Part.LineSegment(V(-0.8, 1.6, 0), V(-0.8, 0, 0)), False)
sketch6.addGeometry(Part.LineSegment(V(56.1, -4.5, 0), V(55.3, -4.5, 0)), False)
sketch6.addGeometry(Part.LineSegment(V(55.3, -4.5, 0), V(55.3, -5.5, 0)), False)
sketch6.addGeometry(Part.LineSegment(V(55.3, -5.5, 0), V(0, -5.5, 0)), False)
sketch6.addGeometry(Part.LineSegment(V(0, -5.5, 0), V(0, -4.5, 0)), False)
sketch6.addGeometry(Part.LineSegment(V(0, -4.5, 0), V(-0.8, -4.5, 0)), False)
sketch6.addGeometry(Part.LineSegment(V(-0.8, -4.5, 0), V(-0.8, -6.2, 0)), False)
sketch6.addGeometry(Part.LineSegment(V(-0.8, -6.2, 0), V(56.1, -6.2, 0)), False)
sketch6.addGeometry(Part.LineSegment(V(56.1, -6.2, 0), V(56.1, -4.5, 0)), False)
sketch6.addConstraint(Sketcher.Constraint("Coincident", 0, 2, 1, 1))
sketch6.addConstraint(Sketcher.Constraint("Coincident", 1, 2, 2, 1))
sketch6.addConstraint(Sketcher.Constraint("Coincident", 2, 2, 3, 1))
sketch6.addConstraint(Sketcher.Constraint("Coincident", 3, 2, 4, 1))
sketch6.addConstraint(Sketcher.Constraint("Coincident", 4, 2, 5, 1))
sketch6.addConstraint(Sketcher.Constraint("Coincident", 5, 2, 6, 1))
sketch6.addConstraint(Sketcher.Constraint("Coincident", 6, 2, 7, 1))
sketch6.addConstraint(Sketcher.Constraint("Coincident", 7, 2, 0, 1))
sketch6.addConstraint(Sketcher.Constraint("Coincident", 8, 2, 9, 1))
sketch6.addConstraint(Sketcher.Constraint("Coincident", 9, 2, 10, 1))
sketch6.addConstraint(Sketcher.Constraint("Coincident", 10, 2, 11, 1))
sketch6.addConstraint(Sketcher.Constraint("Coincident", 11, 2, 12, 1))
sketch6.addConstraint(Sketcher.Constraint("Coincident", 12, 2, 13, 1))
sketch6.addConstraint(Sketcher.Constraint("Coincident", 13, 2, 14, 1))
sketch6.addConstraint(Sketcher.Constraint("Coincident", 14, 2, 15, 1))
sketch6.addConstraint(Sketcher.Constraint("Coincident", 15, 2, 8, 1))
sketch6.addConstraint(Sketcher.Constraint("Horizontal", 0))
sketch6.addConstraint(Sketcher.Constraint("Vertical", 1))
sketch6.addConstraint(Sketcher.Constraint("Horizontal", 2))
sketch6.addConstraint(Sketcher.Constraint("Vertical", 3))
sketch6.addConstraint(Sketcher.Constraint("Horizontal", 4))
sketch6.addConstraint(Sketcher.Constraint("Vertical", 5))
sketch6.addConstraint(Sketcher.Constraint("Horizontal", 6))
sketch6.addConstraint(Sketcher.Constraint("Vertical", 7))
sketch6.addConstraint(Sketcher.Constraint("Horizontal", 8))
sketch6.addConstraint(Sketcher.Constraint("Vertical", 9))
sketch6.addConstraint(Sketcher.Constraint("Horizontal", 10))
sketch6.addConstraint(Sketcher.Constraint("Vertical", 11))
sketch6.addConstraint(Sketcher.Constraint("Horizontal", 12))
sketch6.addConstraint(Sketcher.Constraint("Vertical", 13))
sketch6.addConstraint(Sketcher.Constraint("Horizontal", 14))
sketch6.addConstraint(Sketcher.Constraint("Vertical", 15))
sketch6.addConstraint(Sketcher.Constraint("Coincident", 0, 2, -1, 1))
sketch6.addConstraint(Sketcher.Constraint("PointOnObject", 3, 2, -1))
sketch6.addConstraint(Sketcher.Constraint("PointOnObject", 10, 2, -2))
sketch6.addConstraint(Sketcher.Constraint("Horizontal", 8, 2, 11, 2))
sketch6.addConstraint(Sketcher.Constraint("Vertical", 3, 2, 8, 2))
sketch6.addConstraint(Sketcher.Constraint("Vertical", 7, 2, 12, 2))
sketch6.addConstraint(Sketcher.Constraint("Vertical", 5, 2, 14, 2))
sketch6.addConstraint(Sketcher.Constraint("Equal", 0, 4))
sketch6.addConstraint(Sketcher.Constraint("Equal", 3, 9))
sketch6.addConstraint(Sketcher.Constraint("Equal", 7, 13))
sketch6.addConstraint(Sketcher.Constraint("DistanceX", 0, 1, 0, 2, Q("0.8 mm")))
sketch6.addConstraint(Sketcher.Constraint("DistanceX", 2, 1, 2, 2, Q("55.28 mm")))
sketch6.addConstraint(Sketcher.Constraint("DistanceY", 1, 1, 1, 2, Q("1.01 mm")))
sketch6.addConstraint(Sketcher.Constraint("DistanceY", 5, 1, 5, 2, Q("1.61 mm")))
sketch6.addConstraint(Sketcher.Constraint("DistanceY", 8, 2, -1, 1, Q("4.54 mm")))
pad6 = body6.newObject("PartDesign::Pad", "Pad005")
pad6.Profile = sketch6
pad6.Length = 82
body7 = doc.addObject("PartDesign::Body", "Body006")

# Sketch on XY plane
sketch7 = body7.newObject("Sketcher::SketchObject", "Sketch006")
sketch7.AttachmentSupport = (doc.getObject("XY_Plane006"), [""])
sketch7.MapMode = "FlatFace"
sketch7.addGeometry(Part.LineSegment(V(-0.8, 0, 0), V(-0.8, -4.5, 0)), False)
sketch7.addGeometry(Part.LineSegment(V(-0.8, -4.5, 0), V(56.1, -4.5, 0)), False)
sketch7.addGeometry(Part.LineSegment(V(56.1, -4.5, 0), V(56.1, 0, 0)), False)
sketch7.addGeometry(Part.LineSegment(V(56.1, 0, 0), V(-0.8, 0, 0)), False)
sketch7.addGeometry(Part.LineSegment(V(0, -3.9, 0), V(0, -0.6, 0)), False)
sketch7.addGeometry(Part.LineSegment(V(0, -0.6, 0), V(55.3, -0.6, 0)), False)
sketch7.addGeometry(Part.LineSegment(V(55.3, -0.6, 0), V(55.3, -3.9, 0)), False)
sketch7.addGeometry(Part.LineSegment(V(55.3, -3.9, 0), V(0, -3.9, 0)), False)
sketch7.addConstraint(Sketcher.Constraint("Coincident", 0, 2, 1, 1))
sketch7.addConstraint(Sketcher.Constraint("Coincident", 1, 2, 2, 1))
sketch7.addConstraint(Sketcher.Constraint("Coincident", 2, 2, 3, 1))
sketch7.addConstraint(Sketcher.Constraint("Coincident", 3, 2, 0, 1))
sketch7.addConstraint(Sketcher.Constraint("Coincident", 4, 2, 5, 1))
sketch7.addConstraint(Sketcher.Constraint("Coincident", 5, 2, 6, 1))
sketch7.addConstraint(Sketcher.Constraint("Coincident", 6, 2, 7, 1))
sketch7.addConstraint(Sketcher.Constraint("Coincident", 7, 2, 4, 1))
sketch7.addConstraint(Sketcher.Constraint("Vertical", 0))
sketch7.addConstraint(Sketcher.Constraint("Horizontal", 1))
sketch7.addConstraint(Sketcher.Constraint("Vertical", 2))
sketch7.addConstraint(Sketcher.Constraint("Horizontal", 3))
sketch7.addConstraint(Sketcher.Constraint("Vertical", 4))
sketch7.addConstraint(Sketcher.Constraint("Horizontal", 5))
sketch7.addConstraint(Sketcher.Constraint("Vertical", 6))
sketch7.addConstraint(Sketcher.Constraint("Horizontal", 7))
sketch7.addConstraint(Sketcher.Constraint("PointOnObject", 2, 2, -1))
sketch7.addConstraint(Sketcher.Constraint("PointOnObject", 4, 2, -2))
sketch7.addConstraint(Sketcher.Constraint("DistanceX", 1, 1, 1, 2, Q("56.88 mm")))
sketch7.addConstraint(Sketcher.Constraint("DistanceX", 5, 1, 5, 2, Q("55.28 mm")))
sketch7.addConstraint(Sketcher.Constraint("DistanceY", 0, 2, 0, 1, Q("4.54 mm")))
sketch7.addConstraint(Sketcher.Constraint("DistanceY", 4, 1, 4, 2, Q("3.34 mm")))
sketch7.addConstraint(Sketcher.Constraint("DistanceX", 0, 2, -1, 1, Q("0.8 mm")))
sketch7.addConstraint(Sketcher.Constraint("DistanceY", 4, 2, -1, 1, Q("0.6 mm")))
pad7 = body7.newObject("PartDesign::Pad", "Pad006")
pad7.Profile = sketch7
pad7.Length = 90

doc.recompute()
